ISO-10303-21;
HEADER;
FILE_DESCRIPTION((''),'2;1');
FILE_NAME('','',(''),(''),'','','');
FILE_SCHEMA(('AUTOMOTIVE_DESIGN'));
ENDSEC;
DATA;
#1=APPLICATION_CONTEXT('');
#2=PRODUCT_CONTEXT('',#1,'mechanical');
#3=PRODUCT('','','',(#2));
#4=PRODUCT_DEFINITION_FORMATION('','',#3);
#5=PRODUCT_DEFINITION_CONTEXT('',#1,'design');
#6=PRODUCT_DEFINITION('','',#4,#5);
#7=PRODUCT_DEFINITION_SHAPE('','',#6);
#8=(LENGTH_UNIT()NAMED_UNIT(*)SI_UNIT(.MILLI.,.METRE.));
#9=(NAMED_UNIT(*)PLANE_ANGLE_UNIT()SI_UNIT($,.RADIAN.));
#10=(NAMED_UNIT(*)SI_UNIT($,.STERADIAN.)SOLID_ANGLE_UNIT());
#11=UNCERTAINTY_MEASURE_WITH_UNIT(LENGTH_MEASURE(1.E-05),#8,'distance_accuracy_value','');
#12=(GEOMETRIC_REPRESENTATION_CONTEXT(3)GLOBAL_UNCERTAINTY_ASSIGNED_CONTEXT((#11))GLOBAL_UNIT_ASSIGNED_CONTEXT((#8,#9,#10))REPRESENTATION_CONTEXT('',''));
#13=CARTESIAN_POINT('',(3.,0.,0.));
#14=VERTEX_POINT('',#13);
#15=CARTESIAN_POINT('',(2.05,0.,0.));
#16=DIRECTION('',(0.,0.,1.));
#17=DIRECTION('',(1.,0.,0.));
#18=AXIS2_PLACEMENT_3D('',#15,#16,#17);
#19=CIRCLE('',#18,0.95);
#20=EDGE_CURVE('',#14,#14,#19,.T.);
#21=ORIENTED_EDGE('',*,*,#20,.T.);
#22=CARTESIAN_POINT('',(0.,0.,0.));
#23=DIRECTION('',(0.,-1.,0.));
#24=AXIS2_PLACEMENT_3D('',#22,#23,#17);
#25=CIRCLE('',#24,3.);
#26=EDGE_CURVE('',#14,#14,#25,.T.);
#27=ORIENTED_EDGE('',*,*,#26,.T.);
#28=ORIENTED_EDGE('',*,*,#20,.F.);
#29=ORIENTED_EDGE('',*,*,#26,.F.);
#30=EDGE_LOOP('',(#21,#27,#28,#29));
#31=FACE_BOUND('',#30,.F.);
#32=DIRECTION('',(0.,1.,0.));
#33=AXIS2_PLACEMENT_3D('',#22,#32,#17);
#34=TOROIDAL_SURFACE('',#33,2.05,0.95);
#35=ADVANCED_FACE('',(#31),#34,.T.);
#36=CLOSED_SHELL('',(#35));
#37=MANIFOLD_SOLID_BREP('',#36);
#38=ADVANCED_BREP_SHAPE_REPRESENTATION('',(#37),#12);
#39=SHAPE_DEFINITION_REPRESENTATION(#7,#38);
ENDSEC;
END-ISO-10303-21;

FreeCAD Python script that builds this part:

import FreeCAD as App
import Part
import Sketcher

V = App.Vector

doc = App.newDocument("Part")
body = doc.addObject("PartDesign::Body", "Body")

# Sketch on XY plane
sketch1 = body.newObject("Sketcher::SketchObject", "Sketch")
sketch1.AttachmentSupport = (doc.getObject("XY_Plane"), [""])
sketch1.MapMode = "FlatFace"
sketch1.addGeometry(Part.Circle(V(2.05, 0, 0), V(0, 0, 1), 0.95), False)
sketch1.addConstraint(Sketcher.Constraint("PointOnObject", 0, 3, -1))
sketch1.addConstraint(Sketcher.Constraint("Diameter", 0, 1.9))
sketch1.addConstraint(Sketcher.Constraint("DistanceX", -1, 1, 0, 3, 2.05))
revolution = body.newObject("PartDesign::Revolution", "Revolution")
revolution.Profile = sketch1
revolution.ReferenceAxis = (sketch1, ["V_Axis"])
revolution.Angle = 360

doc.recompute()
